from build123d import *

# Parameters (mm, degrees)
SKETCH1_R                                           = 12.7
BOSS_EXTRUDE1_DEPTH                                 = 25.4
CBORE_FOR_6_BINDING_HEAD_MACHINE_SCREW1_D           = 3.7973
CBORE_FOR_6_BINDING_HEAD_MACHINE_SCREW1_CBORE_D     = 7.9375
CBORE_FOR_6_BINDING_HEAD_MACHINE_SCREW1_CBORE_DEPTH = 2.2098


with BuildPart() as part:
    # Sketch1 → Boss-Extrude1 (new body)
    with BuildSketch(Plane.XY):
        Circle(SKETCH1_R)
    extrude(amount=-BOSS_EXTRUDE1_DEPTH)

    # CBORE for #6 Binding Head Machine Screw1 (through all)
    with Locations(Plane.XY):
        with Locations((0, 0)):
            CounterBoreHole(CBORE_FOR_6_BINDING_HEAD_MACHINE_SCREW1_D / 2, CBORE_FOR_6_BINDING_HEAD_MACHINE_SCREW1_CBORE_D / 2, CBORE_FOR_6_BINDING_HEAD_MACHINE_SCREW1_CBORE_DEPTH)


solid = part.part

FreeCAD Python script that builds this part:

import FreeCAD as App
import Part
import Sketcher
Q = App.Units.Quantity

doc = App.newDocument("Part")
body = doc.addObject("PartDesign::Body", "Body")

# Sketch on XY plane
sketch1 = body.newObject("Sketcher::SketchObject", "Sketch")
sketch1.AttachmentSupport = (doc.getObject("XY_Plane"), [""])
sketch1.MapMode = "FlatFace"
sketch1.addGeometry(Part.Circle(App.Vector(0, 0, 0), App.Vector(0, 0, 1), 13), False)
sketch1.addConstraint([
    Sketcher.Constraint("Coincident", 0, 3, -1, 1),
    Sketcher.Constraint("Diameter", 0, Q("1 in")),
])
pad1 = body.newObject("PartDesign::Pad", "Pad")
pad1.Profile = sketch1
pad1.Length = Q("1 in")
pad1.Reversed = True

# Sketch on XY plane
sketch2 = body.newObject("Sketcher::SketchObject", "Sketch001")
sketch2.AttachmentSupport = (doc.getObject("XY_Plane"), [""])
sketch2.MapMode = "FlatFace"
sketch2.addGeometry(Part.Circle(App.Vector(0, 0, 0), App.Vector(0, 0, 1), 1.9), False)
sketch2.addConstraint([
    Sketcher.Constraint("Coincident", 0, 3, -1, 1),
    Sketcher.Constraint("Diameter", 0, Q("0.1495 in")),
])
doc.recompute()
hole = body.newObject("PartDesign::Hole", "Hole")
hole.Profile = sketch2
hole.ThreadType = "None"
hole.Diameter = Q("0.1495 in")
hole.DepthType = "ThroughAll"
hole.HoleCutType = "Counterbore"
hole.HoleCutDiameter = Q("0.3125 in")
hole.HoleCutDepth = Q("0.087 in")

doc.recompute()
